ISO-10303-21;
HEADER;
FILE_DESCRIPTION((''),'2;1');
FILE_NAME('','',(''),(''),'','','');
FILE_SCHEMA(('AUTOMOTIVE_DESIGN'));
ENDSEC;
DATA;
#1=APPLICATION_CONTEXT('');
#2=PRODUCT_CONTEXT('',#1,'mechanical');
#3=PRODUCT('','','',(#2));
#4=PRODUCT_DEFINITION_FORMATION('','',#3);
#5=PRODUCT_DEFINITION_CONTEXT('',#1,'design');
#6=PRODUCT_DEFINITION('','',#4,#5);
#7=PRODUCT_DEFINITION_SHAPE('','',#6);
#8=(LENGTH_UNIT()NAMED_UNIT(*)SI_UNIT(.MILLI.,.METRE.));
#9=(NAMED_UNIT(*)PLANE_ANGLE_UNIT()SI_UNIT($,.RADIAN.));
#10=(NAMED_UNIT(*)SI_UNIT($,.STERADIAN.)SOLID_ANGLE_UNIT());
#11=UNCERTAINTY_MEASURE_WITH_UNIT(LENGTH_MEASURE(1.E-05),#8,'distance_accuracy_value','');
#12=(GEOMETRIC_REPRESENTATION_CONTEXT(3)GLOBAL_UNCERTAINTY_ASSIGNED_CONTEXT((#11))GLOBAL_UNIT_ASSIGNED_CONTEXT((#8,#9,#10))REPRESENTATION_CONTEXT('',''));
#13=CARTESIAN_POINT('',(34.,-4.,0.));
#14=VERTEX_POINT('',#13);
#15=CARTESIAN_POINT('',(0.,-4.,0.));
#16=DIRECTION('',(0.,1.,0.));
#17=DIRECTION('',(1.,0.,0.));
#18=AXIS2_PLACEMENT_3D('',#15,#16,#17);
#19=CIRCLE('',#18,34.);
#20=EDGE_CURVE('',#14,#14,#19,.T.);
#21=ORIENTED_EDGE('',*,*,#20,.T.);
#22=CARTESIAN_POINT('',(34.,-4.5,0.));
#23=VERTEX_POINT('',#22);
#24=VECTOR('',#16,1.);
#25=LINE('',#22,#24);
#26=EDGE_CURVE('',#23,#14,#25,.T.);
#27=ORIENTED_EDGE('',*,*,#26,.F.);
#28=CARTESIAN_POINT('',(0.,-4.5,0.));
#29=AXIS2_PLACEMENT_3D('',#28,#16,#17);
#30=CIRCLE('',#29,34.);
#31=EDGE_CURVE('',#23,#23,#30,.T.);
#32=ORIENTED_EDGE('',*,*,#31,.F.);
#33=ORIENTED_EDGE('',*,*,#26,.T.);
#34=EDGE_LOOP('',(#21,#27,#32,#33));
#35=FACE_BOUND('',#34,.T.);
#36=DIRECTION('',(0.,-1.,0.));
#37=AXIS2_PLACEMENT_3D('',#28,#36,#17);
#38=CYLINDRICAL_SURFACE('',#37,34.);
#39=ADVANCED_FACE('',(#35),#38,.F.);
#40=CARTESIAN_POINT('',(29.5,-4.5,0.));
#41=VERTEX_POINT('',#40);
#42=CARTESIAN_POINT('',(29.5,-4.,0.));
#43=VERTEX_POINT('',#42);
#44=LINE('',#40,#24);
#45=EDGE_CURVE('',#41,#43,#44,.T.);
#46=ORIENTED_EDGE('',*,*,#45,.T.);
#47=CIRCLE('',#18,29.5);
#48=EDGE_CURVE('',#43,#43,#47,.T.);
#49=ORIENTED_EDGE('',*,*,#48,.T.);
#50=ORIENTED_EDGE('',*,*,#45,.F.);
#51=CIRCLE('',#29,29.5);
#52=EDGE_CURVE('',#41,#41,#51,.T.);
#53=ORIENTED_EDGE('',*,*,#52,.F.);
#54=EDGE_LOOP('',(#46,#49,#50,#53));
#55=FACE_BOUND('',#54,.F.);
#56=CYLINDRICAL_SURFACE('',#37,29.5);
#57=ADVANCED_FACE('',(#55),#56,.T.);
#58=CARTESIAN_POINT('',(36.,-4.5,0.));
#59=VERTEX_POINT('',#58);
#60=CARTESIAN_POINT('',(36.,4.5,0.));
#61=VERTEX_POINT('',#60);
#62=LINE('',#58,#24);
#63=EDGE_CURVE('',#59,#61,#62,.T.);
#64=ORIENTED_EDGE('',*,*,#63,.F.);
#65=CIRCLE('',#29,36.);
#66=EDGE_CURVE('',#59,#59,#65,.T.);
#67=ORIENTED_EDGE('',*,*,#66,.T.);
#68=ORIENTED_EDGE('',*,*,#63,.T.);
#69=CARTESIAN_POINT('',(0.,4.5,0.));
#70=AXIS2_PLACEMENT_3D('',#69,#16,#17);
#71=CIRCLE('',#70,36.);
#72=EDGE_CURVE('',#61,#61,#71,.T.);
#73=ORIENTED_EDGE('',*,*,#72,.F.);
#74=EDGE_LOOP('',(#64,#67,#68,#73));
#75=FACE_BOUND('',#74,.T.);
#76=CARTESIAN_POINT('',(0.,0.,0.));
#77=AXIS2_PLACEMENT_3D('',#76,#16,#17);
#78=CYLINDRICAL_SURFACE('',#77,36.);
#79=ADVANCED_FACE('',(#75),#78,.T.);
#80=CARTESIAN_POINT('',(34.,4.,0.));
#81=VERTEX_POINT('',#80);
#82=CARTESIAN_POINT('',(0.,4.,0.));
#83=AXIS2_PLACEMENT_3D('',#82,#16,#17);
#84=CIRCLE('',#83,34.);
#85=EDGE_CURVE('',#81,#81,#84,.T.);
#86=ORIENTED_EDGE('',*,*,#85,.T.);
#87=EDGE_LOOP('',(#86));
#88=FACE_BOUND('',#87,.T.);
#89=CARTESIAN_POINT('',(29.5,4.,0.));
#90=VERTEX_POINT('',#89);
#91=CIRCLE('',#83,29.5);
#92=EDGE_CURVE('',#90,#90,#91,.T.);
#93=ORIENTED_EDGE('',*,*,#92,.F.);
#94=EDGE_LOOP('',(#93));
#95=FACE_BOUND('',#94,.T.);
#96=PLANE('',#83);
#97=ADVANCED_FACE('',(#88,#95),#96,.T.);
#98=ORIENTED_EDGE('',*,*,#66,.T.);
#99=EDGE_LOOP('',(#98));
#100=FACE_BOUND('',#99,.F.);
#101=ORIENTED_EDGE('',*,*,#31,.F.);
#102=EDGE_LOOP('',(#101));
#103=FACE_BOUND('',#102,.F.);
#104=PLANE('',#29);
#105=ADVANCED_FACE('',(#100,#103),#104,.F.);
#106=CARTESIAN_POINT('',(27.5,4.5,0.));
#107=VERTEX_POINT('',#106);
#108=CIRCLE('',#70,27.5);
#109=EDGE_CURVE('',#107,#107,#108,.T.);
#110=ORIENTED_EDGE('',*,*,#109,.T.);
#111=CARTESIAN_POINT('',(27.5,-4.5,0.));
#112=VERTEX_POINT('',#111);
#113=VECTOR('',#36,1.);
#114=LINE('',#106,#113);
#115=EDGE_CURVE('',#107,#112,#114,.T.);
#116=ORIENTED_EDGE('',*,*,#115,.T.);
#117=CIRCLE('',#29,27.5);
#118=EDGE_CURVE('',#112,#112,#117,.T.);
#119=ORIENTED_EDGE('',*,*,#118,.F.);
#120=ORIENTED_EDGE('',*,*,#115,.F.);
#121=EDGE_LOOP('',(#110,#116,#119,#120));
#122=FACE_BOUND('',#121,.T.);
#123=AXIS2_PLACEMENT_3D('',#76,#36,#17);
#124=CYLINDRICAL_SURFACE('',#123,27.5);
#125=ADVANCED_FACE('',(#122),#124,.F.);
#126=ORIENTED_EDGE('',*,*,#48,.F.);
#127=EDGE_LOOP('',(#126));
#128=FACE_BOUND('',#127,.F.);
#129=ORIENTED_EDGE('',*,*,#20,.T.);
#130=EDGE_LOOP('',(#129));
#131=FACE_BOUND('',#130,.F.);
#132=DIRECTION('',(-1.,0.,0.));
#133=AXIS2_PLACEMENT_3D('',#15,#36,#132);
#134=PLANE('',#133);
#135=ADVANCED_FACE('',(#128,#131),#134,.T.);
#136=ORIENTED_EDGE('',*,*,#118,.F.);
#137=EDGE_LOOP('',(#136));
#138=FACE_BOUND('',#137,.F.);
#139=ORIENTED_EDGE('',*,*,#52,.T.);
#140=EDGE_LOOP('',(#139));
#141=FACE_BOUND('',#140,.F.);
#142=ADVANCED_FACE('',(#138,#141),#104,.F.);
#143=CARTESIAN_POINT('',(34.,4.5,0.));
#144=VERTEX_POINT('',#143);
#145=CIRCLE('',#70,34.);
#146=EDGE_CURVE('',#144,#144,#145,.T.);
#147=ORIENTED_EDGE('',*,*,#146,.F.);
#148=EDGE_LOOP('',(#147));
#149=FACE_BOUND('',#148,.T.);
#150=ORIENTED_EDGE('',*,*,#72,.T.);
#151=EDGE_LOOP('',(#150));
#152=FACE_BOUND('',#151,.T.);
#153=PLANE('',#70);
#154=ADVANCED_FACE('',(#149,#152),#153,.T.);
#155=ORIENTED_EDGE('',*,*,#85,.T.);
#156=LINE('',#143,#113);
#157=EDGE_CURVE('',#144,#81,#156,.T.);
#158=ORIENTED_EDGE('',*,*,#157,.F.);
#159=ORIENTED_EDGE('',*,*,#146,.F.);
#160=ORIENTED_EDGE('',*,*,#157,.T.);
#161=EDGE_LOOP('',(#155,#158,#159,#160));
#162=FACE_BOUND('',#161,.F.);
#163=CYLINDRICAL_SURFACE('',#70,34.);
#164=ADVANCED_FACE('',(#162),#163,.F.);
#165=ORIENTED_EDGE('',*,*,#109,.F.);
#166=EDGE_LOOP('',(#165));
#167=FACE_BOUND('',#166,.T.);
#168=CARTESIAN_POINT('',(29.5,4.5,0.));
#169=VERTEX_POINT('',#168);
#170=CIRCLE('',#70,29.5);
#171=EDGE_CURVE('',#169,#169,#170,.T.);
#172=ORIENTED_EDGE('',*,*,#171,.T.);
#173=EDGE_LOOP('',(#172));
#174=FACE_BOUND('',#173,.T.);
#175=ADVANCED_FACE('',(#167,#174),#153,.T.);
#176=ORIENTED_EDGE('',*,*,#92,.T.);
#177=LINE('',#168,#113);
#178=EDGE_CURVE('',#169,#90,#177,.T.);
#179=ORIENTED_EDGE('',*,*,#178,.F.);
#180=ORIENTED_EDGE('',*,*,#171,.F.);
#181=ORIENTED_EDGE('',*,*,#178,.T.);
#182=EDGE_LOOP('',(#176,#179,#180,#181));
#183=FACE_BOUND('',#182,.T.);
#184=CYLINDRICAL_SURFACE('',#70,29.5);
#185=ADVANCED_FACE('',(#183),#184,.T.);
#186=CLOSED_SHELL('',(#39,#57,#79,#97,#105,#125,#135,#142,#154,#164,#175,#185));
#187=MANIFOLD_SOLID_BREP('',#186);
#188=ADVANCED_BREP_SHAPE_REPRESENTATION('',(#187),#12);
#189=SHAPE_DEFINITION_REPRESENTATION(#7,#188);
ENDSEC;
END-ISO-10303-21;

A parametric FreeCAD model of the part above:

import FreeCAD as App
import Part
import Sketcher
from FreeCAD import Vector
Q = App.Units.Quantity

doc = App.newDocument("Part")
body = doc.addObject("PartDesign::Body", "Body")

sketch1 = body.newObject("Sketcher::SketchObject", "Sketch")
sketch1.AttachmentSupport = (doc.getObject("XZ_Plane"), [""])
sketch1.MapMode = "FlatFace"
sketch1.addGeometry([
    Part.Circle(Vector(0, 0, 0), Vector(0, 0, 1), 36),
    Part.Circle(Vector(0, 0, 0), Vector(0, 0, 1), 27.5),
], False)
sketch1.addConstraint([
    Sketcher.Constraint("Coincident", 0, 3, -1, 1),
    Sketcher.Constraint("Coincident", 1, 3, -1, 1),
    Sketcher.Constraint("Diameter", 0, Q("72 mm")),
    Sketcher.Constraint("Diameter", 1, Q("55 mm")),
])
pad1 = body.newObject("PartDesign::Pad", "Pad")
pad1.Profile = sketch1
pad1.Length = 9
pad1.Midplane = True

sketch2 = body.newObject("Sketcher::SketchObject", "Sketch001")
sketch2.AttachmentSupport = (doc.getObject("XZ_Plane"), [""])
sketch2.MapMode = "FlatFace"
sketch2.AttachmentOffset = App.Placement(Vector(0, 0, -4.5), App.Rotation())
sketch2.addGeometry([
    Part.Circle(Vector(0, 0, 0), Vector(0, 0, 1), 34),
    Part.Circle(Vector(0, 0, 0), Vector(0, 0, 1), 29.5),
], False)
sketch2.addConstraint([
    Sketcher.Constraint("Coincident", 0, 3, -1, 1),
    Sketcher.Constraint("Coincident", 1, 3, -1, 1),
    Sketcher.Constraint("Diameter", 0, Q("68 mm")),
    Sketcher.Constraint("Diameter", 1, Q("59 mm")),
])
pocket1 = body.newObject("PartDesign::Pocket", "Pocket")
pocket1.Profile = sketch2
pocket1.Length = 0.5
pocket1.Reversed = True
doc.recompute()

mirrored = body.newObject("PartDesign::Mirrored", "Mirrored")
mirrored.Originals = [pocket1]
mirrored.MirrorPlane = (doc.getObject("XZ_Plane"), [""])
body.Tip = mirrored

doc.recompute()
